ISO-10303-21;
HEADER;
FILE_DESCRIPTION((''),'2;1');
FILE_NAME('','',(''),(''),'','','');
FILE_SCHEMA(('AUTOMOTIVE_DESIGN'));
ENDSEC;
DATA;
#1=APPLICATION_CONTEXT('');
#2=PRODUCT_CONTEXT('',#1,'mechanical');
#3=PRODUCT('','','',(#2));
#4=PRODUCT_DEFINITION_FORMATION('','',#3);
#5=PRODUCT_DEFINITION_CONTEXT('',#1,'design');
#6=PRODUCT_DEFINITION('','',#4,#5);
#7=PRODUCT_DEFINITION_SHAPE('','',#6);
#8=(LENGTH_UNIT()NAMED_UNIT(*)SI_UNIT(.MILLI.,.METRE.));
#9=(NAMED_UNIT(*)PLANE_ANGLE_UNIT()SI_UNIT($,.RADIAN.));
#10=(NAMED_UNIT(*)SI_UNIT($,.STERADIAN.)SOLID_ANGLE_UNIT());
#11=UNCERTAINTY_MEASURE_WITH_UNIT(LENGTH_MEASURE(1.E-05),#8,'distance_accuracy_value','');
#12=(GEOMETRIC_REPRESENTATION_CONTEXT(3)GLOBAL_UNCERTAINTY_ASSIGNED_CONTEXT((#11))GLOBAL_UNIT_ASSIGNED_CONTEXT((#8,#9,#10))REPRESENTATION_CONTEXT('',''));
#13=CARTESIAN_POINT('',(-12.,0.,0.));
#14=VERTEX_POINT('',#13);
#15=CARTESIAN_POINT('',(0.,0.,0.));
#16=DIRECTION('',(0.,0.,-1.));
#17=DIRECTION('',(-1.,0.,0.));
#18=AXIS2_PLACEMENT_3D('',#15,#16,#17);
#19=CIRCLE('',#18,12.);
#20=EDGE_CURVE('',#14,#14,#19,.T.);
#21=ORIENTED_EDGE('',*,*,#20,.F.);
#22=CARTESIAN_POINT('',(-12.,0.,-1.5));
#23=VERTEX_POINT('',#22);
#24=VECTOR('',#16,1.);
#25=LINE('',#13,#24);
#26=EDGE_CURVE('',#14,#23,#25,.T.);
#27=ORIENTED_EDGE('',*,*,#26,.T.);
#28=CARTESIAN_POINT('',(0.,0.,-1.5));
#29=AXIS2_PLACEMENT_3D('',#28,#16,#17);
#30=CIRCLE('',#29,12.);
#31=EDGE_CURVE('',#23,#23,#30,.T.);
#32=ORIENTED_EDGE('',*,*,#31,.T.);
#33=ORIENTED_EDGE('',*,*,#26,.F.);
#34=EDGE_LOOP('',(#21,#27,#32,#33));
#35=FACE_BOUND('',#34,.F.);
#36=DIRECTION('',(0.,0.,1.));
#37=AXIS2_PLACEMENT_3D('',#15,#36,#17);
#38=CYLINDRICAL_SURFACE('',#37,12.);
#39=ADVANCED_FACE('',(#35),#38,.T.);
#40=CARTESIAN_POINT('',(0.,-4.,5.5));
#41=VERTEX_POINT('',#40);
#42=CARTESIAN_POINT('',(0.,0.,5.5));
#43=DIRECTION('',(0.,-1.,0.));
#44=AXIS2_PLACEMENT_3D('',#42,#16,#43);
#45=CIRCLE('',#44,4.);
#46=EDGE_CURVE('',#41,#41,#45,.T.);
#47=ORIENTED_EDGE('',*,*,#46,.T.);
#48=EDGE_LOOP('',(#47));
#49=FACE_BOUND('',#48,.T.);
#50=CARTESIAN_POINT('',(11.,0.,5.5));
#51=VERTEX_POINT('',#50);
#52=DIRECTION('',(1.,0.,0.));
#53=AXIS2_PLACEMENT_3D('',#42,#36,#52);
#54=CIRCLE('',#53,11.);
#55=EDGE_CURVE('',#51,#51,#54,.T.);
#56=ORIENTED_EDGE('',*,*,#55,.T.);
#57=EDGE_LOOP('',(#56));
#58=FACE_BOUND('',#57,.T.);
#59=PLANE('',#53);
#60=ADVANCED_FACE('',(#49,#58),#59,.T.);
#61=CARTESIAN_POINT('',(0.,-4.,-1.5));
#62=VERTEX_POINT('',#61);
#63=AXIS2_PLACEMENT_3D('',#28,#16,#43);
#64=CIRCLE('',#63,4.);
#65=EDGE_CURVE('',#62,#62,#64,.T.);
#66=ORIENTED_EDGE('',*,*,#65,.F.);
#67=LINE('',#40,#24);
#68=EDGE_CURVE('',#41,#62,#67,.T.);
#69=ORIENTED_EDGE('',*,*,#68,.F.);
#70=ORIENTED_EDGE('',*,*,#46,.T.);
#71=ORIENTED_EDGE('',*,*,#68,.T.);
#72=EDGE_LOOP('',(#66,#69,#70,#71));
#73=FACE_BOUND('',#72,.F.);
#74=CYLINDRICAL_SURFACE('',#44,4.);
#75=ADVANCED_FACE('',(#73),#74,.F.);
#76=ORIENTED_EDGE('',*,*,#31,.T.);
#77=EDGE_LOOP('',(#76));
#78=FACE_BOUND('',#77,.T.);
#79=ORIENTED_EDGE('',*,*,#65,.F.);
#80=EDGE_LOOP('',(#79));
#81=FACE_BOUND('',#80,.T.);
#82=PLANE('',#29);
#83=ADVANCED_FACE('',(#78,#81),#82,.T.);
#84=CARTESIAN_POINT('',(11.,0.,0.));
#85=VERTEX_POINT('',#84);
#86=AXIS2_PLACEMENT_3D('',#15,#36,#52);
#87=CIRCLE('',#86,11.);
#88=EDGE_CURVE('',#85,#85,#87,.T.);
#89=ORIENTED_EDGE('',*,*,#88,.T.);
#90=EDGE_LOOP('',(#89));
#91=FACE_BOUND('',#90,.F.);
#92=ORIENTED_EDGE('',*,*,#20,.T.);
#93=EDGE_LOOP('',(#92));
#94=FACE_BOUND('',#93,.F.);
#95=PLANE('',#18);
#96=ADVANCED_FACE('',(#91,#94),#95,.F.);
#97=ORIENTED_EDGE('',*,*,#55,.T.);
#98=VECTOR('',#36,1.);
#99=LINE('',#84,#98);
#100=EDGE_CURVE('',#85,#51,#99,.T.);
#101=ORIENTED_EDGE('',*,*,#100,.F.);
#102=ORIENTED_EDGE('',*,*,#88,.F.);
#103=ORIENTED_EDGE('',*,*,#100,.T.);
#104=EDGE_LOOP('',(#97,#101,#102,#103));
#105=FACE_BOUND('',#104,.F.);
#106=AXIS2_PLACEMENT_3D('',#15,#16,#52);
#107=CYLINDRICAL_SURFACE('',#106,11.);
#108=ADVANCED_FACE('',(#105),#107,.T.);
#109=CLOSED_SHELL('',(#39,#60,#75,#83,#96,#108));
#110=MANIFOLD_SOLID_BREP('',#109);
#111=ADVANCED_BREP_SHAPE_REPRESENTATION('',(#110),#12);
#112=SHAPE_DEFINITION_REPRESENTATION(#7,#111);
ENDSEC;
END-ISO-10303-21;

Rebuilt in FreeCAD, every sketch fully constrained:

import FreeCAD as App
import Part
import Sketcher
Q = App.Units.Quantity

doc = App.newDocument("Part")
params = doc.addObject("Spreadsheet::Sheet", "Params")
for row, (alias, value) in enumerate([
    ("sketch1_diameter", "22 mm"),
    ("pad1_length", "5.5 mm"),
    ("sketch2_diameter", "24 mm"),
    ("pad2_length", "1.5 mm"),
    ("sketch3_diameter", "8 mm"),
    ("hole_diameter", "8 mm"),
    ("hole_depth", "7 mm"),
], start=1):
    params.set(f"A{row}", alias)
    params.set(f"B{row}", "=" + value)
    params.setAlias(f"B{row}", alias)

body = doc.addObject("PartDesign::Body", "Body")

# Sketch on XY plane
sketch1 = body.newObject("Sketcher::SketchObject", "Sketch")
sketch1.AttachmentSupport = (doc.getObject("XY_Plane"), [""])
sketch1.MapMode = "FlatFace"
sketch1.addGeometry(Part.Circle(App.Vector(0, 0, 0), App.Vector(0, 0, 1), 11), False)
sketch1.addConstraint([
    Sketcher.Constraint("Coincident", 0, 3, -1, 1),
    Sketcher.Constraint("Diameter", 0, Q("22 mm")),
])
sketch1.setExpression("Constraints[1]", "Params.sketch1_diameter")
pad1 = body.newObject("PartDesign::Pad", "Pad")
pad1.Profile = sketch1
pad1.setExpression("Length", "Params.pad1_length")

# Sketch on XY plane
sketch2 = body.newObject("Sketcher::SketchObject", "Sketch001")
sketch2.AttachmentSupport = (doc.getObject("XY_Plane"), [""])
sketch2.MapMode = "FlatFace"
sketch2.addGeometry(Part.Circle(App.Vector(0, 0, 0), App.Vector(0, 0, 1), 12), False)
sketch2.addConstraint([
    Sketcher.Constraint("Coincident", 0, 3, -1, 1),
    Sketcher.Constraint("Diameter", 0, Q("24 mm")),
])
sketch2.setExpression("Constraints[1]", "Params.sketch2_diameter")
pad2 = body.newObject("PartDesign::Pad", "Pad001")
pad2.Profile = sketch2
pad2.setExpression("Length", "Params.pad2_length")
pad2.Reversed = True

# Sketch on XY plane
sketch3 = body.newObject("Sketcher::SketchObject", "Sketch002")
sketch3.AttachmentSupport = (doc.getObject("XY_Plane"), [""])
sketch3.MapMode = "FlatFace"
sketch3.AttachmentOffset = App.Placement(App.Vector(0, 0, 5.5), App.Rotation())
sketch3.addGeometry(Part.Circle(App.Vector(0, 0, 0), App.Vector(0, 0, 1), 4), False)
sketch3.addConstraint([
    Sketcher.Constraint("Coincident", 0, 3, -1, 1),
    Sketcher.Constraint("Diameter", 0, Q("8 mm")),
])
sketch3.setExpression("Constraints[1]", "Params.sketch3_diameter")
doc.recompute()
hole = body.newObject("PartDesign::Hole", "Hole")
hole.Profile = sketch3
hole.ThreadType = "None"
hole.setExpression("Diameter", "Params.hole_diameter")
hole.DepthType = "Dimension"
hole.setExpression("Depth", "Params.hole_depth")
hole.DrillPoint = "Angled"
hole.DrillPointAngle = 118

doc.recompute()
